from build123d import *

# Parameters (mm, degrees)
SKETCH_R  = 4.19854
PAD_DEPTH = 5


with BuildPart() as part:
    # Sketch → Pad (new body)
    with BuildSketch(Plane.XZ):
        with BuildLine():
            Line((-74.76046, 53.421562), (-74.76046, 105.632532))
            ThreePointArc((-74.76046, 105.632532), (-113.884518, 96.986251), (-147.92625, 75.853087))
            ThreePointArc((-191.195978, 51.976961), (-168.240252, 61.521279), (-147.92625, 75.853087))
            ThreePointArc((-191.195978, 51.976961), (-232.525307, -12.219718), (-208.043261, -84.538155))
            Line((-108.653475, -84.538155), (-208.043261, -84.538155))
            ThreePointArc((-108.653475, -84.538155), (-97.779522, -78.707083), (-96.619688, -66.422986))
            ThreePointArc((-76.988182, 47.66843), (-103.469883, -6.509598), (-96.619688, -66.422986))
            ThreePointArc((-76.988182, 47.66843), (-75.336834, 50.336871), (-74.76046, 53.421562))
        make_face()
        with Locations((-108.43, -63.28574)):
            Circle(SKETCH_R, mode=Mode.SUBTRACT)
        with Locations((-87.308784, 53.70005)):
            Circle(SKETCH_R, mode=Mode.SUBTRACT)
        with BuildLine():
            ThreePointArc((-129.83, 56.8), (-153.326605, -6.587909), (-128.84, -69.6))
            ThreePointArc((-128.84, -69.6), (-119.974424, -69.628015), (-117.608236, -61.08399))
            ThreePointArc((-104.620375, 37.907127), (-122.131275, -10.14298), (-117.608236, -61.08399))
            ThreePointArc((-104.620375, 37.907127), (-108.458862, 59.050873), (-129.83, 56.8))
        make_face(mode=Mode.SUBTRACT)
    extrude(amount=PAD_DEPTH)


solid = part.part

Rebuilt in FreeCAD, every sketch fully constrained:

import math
import FreeCAD as App
import Part
import Sketcher
from FreeCAD import Vector

doc = App.newDocument("Part")
body = doc.addObject("PartDesign::Body", "Body")

sketch1 = doc.addObject("Sketcher::SketchObject", "Sketch")
body.addObject(sketch1)
sketch1.AttachmentSupport = (doc.XZ_Plane, [""])
sketch1.MapMode = "FlatFace"
sketch1.addGeometry([
    Part.LineSegment(Vector(-74.8, 53.4, 0), Vector(-74.8, 105.6, 0)),
    Part.ArcOfCircle(Part.Circle(Vector(-69, -13.3, 0), Vector(0, 0, 1), 119.1), math.radians(93), math.radians(132)),
    Part.ArcOfCircle(Part.Circle(Vector(-222.8, 160.5, 0), Vector(0, 0, 1), 113), math.radians(-74), math.radians(-48)),
    Part.ArcOfCircle(Part.Circle(Vector(-145.3, -23, 0), Vector(0, 0, 1), 87.9), math.radians(121), math.radians(224)),
    Part.LineSegment(Vector(-208, -84.5, 0), Vector(-108.7, -84.5, 0)),
    Part.ArcOfCircle(Part.Circle(Vector(-108.7, -71.5, 0), Vector(0, 0, 1), 13.1), math.radians(-90), math.radians(23)),
    Part.ArcOfCircle(Part.Circle(Vector(2.5, -24.7, 0), Vector(0, 0, 1), 107.5), math.radians(138), math.radians(203)),
    Part.ArcOfCircle(Part.Circle(Vector(-83.3, 53.4, 0), Vector(0, 0, 1), 8.5), math.radians(-42), math.radians(0)),
    Part.Circle(Vector(-108.4, -63.3, 0), Vector(0, 0, 1), 4.2),
    Part.ArcOfCircle(Part.Circle(Vector(-58.1, -5.8, 0), Vector(0, 0, 1), 95.2), math.radians(139), math.radians(222)),
    Part.ArcOfCircle(Part.Circle(Vector(-117.9, 46.4, 0), Vector(0, 0, 1), 15.8), math.radians(-33), math.radians(139)),
    Part.ArcOfCircle(Part.Circle(Vector(-5.4, -25.5, 0), Vector(0, 0, 1), 117.7), math.radians(147), math.radians(198)),
    Part.ArcOfCircle(Part.Circle(Vector(-124.4, -63.8, 0), Vector(0, 0, 1), 7.3), math.radians(-128), math.radians(22)),
    Part.Circle(Vector(-87.3, 53.7, 0), Vector(0, 0, 1), 4.2),
], False)
sketch1.addConstraint([
    Sketcher.Constraint("Coincident", 0, 2, 1, 1),
    Sketcher.Constraint("Tangent", 1, 2, 2, 2),
    Sketcher.Constraint("Coincident", 2, 1, 3, 1),
    Sketcher.Constraint("Coincident", 3, 2, 4, 1),
    Sketcher.Constraint("Tangent", 4, 2, 5, 1),
    Sketcher.Constraint("Tangent", 5, 2, 6, 2),
    Sketcher.Constraint("Tangent", 6, 1, 7, 1),
    Sketcher.Constraint("Tangent", 7, 2, 0, 1),
    Sketcher.Constraint("Tangent", 9, 1, 10, 2),
    Sketcher.Constraint("Tangent", 10, 1, 11, 1),
    Sketcher.Constraint("Coincident", 11, 2, 12, 2),
    Sketcher.Constraint("Coincident", 12, 1, 9, 2),
    Sketcher.Constraint("Vertical", 0),
    Sketcher.Constraint("Horizontal", 4),
    Sketcher.Constraint("Equal", 8, 13),
    Sketcher.Constraint("DistanceY", -1, 1, 9, 1, 56.8),
    Sketcher.Constraint("DistanceY", 12, 1, -1, 1, 69.6),
    Sketcher.Constraint("Diameter", 8, 8.39708),
    Sketcher.Constraint("DistanceX", 8, 3, -1, 1, 108.43),
    Sketcher.Constraint("DistanceX", 9, 1, -1, 1, 129.83),
    Sketcher.Constraint("DistanceX", 12, 1, -1, 1, 128.84),
    Sketcher.Constraint("Radius", 1, 119.084949),
    Sketcher.Constraint("Radius", 2, 113.032561),
    Sketcher.Constraint("Radius", 3, 87.909385),
    Sketcher.Constraint("Radius", 5, 13.054566),
    Sketcher.Constraint("Radius", 6, 107.520782),
    Sketcher.Constraint("Radius", 7, 8.542637),
    Sketcher.Constraint("Radius", 9, 95.241174),
    Sketcher.Constraint("Radius", 10, 15.795705),
    Sketcher.Constraint("Radius", 11, 117.692063),
    Sketcher.Constraint("Radius", 12, 7.306517),
    Sketcher.Constraint("DistanceY", 0, 1, 0, 2, 52.21097),
    Sketcher.Constraint("DistanceX", 3, 3, -1, 1, 145.277798),
    Sketcher.Constraint("DistanceY", 3, 3, 2, 3, 183.4739),
    Sketcher.Constraint("DistanceX", 3, 3, 7, 3, 61.974702),
    Sketcher.Constraint("DistanceY", 8, 3, 7, 3, 116.707299),
    Sketcher.Constraint("DistanceY", 10, 3, 7, 3, 7.010702),
    Sketcher.Constraint("DistanceX", 7, 3, 11, 3, 77.8638),
    Sketcher.Constraint("DistanceY", 2, 1, 7, 3, 1.444598),
    Sketcher.Constraint("DistanceX", 13, 3, 6, 1, 10.320602),
    Sketcher.Constraint("DistanceY", 5, 3, 11, 2, 10.399599),
    Sketcher.Constraint("DistanceX", 4, 1, 4, 2, 99.389786),
    Sketcher.Constraint("DistanceY", 5, 3, -1, 1, 71.483589),
    Sketcher.Constraint("DistanceY", 6, 3, -1, 1, 24.74256),
    Sketcher.Constraint("DistanceY", -1, 1, 13, 3, 53.70005),
])
pad1 = doc.addObject("PartDesign::Pad", "Pad")
body.addObject(pad1)
pad1.Profile = sketch1
pad1.Length = 5

doc.recompute()
